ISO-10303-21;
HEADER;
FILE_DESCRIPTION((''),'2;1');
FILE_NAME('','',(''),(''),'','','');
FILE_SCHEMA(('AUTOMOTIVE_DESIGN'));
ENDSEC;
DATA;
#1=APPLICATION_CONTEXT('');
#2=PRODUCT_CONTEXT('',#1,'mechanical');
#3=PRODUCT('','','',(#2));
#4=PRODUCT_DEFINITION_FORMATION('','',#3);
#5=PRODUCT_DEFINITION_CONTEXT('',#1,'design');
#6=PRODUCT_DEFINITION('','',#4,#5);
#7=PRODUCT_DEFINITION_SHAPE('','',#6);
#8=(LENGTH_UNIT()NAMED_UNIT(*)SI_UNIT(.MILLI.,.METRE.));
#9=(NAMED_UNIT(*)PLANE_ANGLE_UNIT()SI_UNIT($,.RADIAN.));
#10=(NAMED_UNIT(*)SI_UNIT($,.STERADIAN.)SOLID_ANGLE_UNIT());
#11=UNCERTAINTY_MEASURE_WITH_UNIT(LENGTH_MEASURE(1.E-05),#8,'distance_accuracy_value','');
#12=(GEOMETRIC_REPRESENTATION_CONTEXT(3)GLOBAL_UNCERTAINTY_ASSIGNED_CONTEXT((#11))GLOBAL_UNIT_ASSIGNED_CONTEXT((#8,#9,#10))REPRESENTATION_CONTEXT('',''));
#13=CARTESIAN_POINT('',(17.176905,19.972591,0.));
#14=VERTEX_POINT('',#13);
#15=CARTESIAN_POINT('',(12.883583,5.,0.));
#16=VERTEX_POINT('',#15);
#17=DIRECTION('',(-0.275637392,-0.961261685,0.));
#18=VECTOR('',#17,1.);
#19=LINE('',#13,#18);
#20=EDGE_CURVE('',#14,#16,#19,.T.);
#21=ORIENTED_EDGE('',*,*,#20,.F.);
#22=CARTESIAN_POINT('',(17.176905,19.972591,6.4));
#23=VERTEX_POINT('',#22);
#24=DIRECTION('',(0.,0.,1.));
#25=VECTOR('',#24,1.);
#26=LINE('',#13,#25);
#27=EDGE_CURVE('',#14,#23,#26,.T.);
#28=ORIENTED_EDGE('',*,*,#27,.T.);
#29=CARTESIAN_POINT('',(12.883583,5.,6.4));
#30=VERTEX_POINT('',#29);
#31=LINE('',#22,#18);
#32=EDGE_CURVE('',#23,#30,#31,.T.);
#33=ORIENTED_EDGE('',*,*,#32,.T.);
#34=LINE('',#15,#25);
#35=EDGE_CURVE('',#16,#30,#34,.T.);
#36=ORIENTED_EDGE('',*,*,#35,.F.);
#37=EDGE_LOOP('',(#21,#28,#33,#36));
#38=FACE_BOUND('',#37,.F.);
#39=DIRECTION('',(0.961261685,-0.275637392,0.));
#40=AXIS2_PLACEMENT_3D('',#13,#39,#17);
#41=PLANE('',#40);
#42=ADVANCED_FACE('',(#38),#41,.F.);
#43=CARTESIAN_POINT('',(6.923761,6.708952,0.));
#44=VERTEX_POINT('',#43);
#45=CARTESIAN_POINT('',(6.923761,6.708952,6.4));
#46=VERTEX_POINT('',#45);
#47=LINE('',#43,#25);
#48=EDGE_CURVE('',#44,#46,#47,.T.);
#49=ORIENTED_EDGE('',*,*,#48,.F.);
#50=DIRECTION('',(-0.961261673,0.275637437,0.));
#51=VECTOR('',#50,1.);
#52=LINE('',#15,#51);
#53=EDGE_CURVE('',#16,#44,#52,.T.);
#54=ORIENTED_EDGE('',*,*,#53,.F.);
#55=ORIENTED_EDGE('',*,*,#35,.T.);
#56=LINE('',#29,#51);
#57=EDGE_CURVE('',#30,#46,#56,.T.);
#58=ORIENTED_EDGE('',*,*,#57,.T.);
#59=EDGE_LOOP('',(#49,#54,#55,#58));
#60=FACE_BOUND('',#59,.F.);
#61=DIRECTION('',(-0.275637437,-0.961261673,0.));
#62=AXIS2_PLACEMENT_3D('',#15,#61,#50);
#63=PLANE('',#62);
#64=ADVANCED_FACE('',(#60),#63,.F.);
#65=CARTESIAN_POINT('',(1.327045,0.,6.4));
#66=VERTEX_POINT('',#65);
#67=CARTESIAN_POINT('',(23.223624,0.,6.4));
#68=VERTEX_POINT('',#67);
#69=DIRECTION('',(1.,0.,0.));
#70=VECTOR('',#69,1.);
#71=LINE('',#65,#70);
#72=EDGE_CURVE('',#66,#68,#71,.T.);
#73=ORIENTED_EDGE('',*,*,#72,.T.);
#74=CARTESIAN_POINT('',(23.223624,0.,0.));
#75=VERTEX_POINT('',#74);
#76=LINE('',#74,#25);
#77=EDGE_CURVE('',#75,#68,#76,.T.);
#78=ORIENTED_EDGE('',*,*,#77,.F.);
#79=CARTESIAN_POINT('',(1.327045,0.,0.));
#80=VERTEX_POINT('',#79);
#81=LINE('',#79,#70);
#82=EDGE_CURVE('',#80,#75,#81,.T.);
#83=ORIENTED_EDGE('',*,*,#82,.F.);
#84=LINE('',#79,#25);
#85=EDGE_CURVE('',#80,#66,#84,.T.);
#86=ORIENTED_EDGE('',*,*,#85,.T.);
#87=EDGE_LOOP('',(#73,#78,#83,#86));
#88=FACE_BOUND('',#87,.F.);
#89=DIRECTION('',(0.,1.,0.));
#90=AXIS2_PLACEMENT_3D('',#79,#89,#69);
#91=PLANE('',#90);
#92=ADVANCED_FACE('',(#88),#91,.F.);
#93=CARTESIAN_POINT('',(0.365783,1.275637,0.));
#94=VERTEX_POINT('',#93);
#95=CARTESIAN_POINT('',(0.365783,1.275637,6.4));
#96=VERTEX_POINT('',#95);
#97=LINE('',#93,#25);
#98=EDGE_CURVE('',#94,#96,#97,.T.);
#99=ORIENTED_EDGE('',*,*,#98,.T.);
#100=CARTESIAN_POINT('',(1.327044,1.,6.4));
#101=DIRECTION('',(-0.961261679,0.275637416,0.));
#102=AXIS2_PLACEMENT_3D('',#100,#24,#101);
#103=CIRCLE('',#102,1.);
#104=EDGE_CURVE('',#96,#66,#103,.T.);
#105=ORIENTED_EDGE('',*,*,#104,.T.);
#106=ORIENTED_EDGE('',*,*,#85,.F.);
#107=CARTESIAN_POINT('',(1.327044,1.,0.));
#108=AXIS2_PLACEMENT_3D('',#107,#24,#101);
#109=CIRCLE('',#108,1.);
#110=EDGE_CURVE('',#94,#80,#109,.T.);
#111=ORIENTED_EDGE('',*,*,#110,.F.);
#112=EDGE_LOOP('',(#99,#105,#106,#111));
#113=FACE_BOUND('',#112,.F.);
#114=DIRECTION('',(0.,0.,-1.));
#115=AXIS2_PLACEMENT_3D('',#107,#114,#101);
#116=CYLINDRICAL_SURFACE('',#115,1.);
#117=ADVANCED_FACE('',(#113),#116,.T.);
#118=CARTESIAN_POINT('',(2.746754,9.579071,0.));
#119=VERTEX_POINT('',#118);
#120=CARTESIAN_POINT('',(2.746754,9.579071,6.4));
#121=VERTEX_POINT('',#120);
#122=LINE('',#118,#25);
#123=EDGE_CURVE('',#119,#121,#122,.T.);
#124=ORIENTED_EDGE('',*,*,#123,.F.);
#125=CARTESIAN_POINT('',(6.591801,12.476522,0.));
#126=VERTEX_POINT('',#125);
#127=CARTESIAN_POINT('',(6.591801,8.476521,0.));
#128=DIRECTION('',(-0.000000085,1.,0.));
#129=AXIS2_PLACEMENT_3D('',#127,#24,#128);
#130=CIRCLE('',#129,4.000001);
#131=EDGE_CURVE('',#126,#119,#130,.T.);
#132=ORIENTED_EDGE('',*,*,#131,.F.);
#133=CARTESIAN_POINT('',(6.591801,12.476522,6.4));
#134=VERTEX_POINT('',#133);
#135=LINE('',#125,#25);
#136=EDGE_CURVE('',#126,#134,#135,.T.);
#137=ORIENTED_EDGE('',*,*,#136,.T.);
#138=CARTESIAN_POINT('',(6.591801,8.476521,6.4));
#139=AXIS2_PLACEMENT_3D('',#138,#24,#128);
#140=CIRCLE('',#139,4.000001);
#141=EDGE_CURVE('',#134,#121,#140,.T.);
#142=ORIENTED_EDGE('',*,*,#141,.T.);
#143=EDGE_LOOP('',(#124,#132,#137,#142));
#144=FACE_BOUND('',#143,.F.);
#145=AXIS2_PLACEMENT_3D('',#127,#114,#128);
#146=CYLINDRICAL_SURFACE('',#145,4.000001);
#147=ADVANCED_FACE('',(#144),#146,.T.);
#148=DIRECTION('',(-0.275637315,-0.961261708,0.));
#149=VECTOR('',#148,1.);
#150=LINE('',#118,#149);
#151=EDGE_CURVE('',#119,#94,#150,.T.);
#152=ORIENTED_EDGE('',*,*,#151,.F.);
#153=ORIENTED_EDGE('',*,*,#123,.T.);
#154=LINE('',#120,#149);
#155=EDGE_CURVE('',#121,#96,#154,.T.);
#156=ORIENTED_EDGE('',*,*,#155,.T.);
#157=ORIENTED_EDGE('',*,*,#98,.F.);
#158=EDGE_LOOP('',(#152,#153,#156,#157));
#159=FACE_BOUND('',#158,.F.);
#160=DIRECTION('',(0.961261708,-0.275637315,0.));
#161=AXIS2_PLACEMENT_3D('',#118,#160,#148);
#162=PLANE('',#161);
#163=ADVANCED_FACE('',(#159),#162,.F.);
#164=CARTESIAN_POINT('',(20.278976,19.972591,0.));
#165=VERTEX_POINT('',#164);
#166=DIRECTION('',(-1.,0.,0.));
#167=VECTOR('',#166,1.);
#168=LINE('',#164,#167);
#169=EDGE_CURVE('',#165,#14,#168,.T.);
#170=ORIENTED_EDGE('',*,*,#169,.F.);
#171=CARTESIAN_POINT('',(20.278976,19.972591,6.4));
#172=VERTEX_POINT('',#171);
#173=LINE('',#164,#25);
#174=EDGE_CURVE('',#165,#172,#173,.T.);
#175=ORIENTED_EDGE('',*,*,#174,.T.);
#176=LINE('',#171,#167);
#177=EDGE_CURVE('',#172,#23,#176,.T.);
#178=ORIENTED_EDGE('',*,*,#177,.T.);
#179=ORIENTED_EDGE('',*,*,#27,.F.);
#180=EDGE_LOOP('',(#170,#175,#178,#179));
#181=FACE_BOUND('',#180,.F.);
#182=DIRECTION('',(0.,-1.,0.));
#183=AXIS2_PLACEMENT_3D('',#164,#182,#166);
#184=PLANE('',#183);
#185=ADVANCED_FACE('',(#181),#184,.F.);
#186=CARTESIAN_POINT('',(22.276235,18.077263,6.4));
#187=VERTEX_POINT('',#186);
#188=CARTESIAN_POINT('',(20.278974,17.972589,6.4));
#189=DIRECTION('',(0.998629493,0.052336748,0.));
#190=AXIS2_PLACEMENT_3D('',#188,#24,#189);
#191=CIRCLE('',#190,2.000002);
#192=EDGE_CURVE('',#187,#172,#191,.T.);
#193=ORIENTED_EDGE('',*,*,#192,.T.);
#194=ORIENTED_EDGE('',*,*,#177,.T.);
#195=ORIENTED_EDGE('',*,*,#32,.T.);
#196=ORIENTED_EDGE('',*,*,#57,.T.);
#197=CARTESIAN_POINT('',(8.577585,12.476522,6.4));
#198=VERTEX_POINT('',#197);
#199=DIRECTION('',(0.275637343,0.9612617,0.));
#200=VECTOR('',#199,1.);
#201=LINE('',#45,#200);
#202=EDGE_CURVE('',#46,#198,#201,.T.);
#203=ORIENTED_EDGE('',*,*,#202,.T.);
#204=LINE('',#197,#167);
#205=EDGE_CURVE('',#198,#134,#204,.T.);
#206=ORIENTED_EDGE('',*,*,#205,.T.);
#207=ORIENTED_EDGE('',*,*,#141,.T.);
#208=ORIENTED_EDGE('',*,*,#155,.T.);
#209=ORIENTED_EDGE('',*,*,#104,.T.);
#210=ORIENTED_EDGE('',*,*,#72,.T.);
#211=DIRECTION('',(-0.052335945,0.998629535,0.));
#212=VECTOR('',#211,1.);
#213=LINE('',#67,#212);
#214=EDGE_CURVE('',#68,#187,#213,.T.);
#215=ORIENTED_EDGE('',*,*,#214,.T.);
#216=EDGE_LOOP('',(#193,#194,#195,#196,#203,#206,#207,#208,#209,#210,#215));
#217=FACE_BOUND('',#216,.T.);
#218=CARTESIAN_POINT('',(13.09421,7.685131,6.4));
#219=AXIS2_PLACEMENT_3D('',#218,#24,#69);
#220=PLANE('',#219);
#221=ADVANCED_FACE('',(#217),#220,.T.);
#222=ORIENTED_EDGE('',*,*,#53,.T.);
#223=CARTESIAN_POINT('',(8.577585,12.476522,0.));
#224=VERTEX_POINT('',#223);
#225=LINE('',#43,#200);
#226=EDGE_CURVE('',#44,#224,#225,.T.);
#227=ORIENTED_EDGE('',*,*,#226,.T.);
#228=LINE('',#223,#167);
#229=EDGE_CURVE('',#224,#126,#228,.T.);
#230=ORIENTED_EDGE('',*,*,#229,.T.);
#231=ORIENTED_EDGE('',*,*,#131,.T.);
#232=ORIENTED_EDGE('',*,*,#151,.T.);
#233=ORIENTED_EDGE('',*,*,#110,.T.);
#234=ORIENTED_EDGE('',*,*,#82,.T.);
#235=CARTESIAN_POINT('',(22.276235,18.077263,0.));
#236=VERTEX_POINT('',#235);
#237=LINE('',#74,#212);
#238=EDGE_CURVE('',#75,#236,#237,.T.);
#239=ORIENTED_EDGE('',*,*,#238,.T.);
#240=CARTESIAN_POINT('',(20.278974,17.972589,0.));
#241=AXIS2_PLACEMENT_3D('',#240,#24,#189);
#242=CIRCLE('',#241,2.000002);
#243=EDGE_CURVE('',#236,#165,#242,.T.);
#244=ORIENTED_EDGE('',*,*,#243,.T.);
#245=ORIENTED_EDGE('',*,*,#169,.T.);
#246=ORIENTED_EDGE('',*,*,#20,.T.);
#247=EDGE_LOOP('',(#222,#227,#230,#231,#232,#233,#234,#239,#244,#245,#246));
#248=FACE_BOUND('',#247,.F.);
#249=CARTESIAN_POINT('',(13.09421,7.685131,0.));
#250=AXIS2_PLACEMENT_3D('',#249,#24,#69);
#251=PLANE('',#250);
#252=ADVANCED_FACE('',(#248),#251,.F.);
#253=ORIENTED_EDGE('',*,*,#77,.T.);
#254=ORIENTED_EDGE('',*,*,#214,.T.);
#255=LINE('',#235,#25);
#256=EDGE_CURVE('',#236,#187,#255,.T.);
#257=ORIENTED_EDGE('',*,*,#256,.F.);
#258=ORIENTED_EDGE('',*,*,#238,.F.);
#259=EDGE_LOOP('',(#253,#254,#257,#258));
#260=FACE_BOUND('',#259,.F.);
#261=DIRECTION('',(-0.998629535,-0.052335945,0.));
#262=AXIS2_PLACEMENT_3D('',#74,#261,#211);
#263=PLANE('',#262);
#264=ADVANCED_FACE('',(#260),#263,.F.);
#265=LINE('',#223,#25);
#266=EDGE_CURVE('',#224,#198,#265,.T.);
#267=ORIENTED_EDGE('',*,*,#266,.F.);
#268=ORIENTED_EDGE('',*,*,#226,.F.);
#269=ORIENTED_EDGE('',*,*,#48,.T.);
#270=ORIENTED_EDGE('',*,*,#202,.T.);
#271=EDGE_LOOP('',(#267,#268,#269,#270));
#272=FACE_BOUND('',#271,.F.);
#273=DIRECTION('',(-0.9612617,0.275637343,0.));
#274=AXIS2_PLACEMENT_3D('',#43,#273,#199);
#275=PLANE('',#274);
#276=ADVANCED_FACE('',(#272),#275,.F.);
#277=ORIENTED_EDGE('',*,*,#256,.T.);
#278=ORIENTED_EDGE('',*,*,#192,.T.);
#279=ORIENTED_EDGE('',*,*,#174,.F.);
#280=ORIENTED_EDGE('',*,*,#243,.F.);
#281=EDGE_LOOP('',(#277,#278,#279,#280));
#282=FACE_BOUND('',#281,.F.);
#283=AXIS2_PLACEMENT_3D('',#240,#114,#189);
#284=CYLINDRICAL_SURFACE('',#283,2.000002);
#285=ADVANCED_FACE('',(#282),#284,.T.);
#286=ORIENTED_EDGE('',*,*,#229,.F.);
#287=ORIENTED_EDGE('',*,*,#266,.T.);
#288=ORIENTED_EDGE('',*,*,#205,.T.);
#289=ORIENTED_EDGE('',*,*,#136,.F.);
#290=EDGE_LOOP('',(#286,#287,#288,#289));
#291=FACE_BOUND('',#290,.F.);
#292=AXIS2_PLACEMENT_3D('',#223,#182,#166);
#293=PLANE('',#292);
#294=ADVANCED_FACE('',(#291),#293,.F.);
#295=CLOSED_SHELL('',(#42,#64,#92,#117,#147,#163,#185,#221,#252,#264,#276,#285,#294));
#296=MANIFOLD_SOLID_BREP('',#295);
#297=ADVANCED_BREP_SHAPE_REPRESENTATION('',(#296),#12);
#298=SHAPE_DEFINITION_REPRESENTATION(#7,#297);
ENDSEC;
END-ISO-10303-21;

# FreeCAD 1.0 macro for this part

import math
import FreeCAD as App
import Part
import Sketcher
from FreeCAD import Vector
Q = App.Units.Quantity

doc = App.newDocument("Part")
body = doc.addObject("PartDesign::Body", "Body")

sketch1 = body.newObject("Sketcher::SketchObject", "Sketch")
sketch1.AttachmentSupport = (doc.getObject("XY_Plane"), [""])
sketch1.MapMode = "FlatFace"
sketch1.addGeometry([
    Part.LineSegment(Vector(1.3, 0, 0), Vector(23.2, 0, 0)),
    Part.LineSegment(Vector(23.2, 0, 0), Vector(22.3, 18.1, 0)),
    Part.ArcOfCircle(Part.Circle(Vector(20.3, 18, 0), Vector(0, 0, 1), 2), math.radians(3), math.radians(90)),
    Part.LineSegment(Vector(20.3, 20, 0), Vector(17.2, 20, 0)),
    Part.LineSegment(Vector(17.2, 20, 0), Vector(12.9, 5, 0)),
    Part.LineSegment(Vector(12.9, 5, 0), Vector(6.9, 6.7, 0)),
    Part.LineSegment(Vector(6.9, 6.7, 0), Vector(8.6, 12.5, 0)),
    Part.LineSegment(Vector(8.6, 12.5, 0), Vector(6.6, 12.5, 0)),
    Part.ArcOfCircle(Part.Circle(Vector(6.6, 8.5, 0), Vector(0, 0, 1), 4), math.radians(90), math.radians(164)),
    Part.LineSegment(Vector(2.7, 9.6, 0), Vector(0.4, 1.3, 0)),
    Part.ArcOfCircle(Part.Circle(Vector(1.3, 1, 0), Vector(0, 0, 1), 1), math.radians(164), math.radians(270)),
], False)
sketch1.addConstraint([
    Sketcher.Constraint("Coincident", 0, 2, 1, 1),
    Sketcher.Constraint("Tangent", 1, 2, 2, 1),
    Sketcher.Constraint("Tangent", 2, 2, 3, 1),
    Sketcher.Constraint("Coincident", 3, 2, 4, 1),
    Sketcher.Constraint("Coincident", 4, 2, 5, 1),
    Sketcher.Constraint("Coincident", 5, 2, 6, 1),
    Sketcher.Constraint("Coincident", 6, 2, 7, 1),
    Sketcher.Constraint("Tangent", 7, 2, 8, 1),
    Sketcher.Constraint("Tangent", 8, 2, 9, 1),
    Sketcher.Constraint("Tangent", 9, 2, 10, 1),
    Sketcher.Constraint("Tangent", 10, 2, 0, 1),
    Sketcher.Constraint("Horizontal", 0),
    Sketcher.Constraint("Horizontal", 3),
    Sketcher.Constraint("Horizontal", 7),
    Sketcher.Constraint("PointOnObject", 0, 2, -1),
    Sketcher.Constraint("Perpendicular", 4, 5),
    Sketcher.Constraint("Perpendicular", 5, 6),
    Sketcher.Constraint("Parallel", 6, 9),
    Sketcher.Constraint("Radius", 2, 2.000002),
    Sketcher.Constraint("Radius", 8, 4.000001),
    Sketcher.Constraint("Radius", 10, 1.0),
    Sketcher.Constraint("Angle", 1, Q("92.999999 deg")),
    Sketcher.Constraint("Angle", 4, Q("-106.000002 deg")),
    Sketcher.Constraint("Distance", 6, 6.0),
    Sketcher.Constraint("DistanceY", -1, 1, 4, 2, 5.0),
    Sketcher.Constraint("Distance", 5, 6.2),
    Sketcher.Constraint("DistanceX", 0, 1, 0, 2, 21.896579),
    Sketcher.Constraint("DistanceX", 3, 2, 3, 1, 3.102071),
    Sketcher.Constraint("DistanceX", -1, 1, 8, 3, 6.591801),
    Sketcher.Constraint("Distance", 1, 18.102071),
])
pad1 = body.newObject("PartDesign::Pad", "Pad")
pad1.Profile = sketch1
pad1.Length = 6.4

doc.recompute()
